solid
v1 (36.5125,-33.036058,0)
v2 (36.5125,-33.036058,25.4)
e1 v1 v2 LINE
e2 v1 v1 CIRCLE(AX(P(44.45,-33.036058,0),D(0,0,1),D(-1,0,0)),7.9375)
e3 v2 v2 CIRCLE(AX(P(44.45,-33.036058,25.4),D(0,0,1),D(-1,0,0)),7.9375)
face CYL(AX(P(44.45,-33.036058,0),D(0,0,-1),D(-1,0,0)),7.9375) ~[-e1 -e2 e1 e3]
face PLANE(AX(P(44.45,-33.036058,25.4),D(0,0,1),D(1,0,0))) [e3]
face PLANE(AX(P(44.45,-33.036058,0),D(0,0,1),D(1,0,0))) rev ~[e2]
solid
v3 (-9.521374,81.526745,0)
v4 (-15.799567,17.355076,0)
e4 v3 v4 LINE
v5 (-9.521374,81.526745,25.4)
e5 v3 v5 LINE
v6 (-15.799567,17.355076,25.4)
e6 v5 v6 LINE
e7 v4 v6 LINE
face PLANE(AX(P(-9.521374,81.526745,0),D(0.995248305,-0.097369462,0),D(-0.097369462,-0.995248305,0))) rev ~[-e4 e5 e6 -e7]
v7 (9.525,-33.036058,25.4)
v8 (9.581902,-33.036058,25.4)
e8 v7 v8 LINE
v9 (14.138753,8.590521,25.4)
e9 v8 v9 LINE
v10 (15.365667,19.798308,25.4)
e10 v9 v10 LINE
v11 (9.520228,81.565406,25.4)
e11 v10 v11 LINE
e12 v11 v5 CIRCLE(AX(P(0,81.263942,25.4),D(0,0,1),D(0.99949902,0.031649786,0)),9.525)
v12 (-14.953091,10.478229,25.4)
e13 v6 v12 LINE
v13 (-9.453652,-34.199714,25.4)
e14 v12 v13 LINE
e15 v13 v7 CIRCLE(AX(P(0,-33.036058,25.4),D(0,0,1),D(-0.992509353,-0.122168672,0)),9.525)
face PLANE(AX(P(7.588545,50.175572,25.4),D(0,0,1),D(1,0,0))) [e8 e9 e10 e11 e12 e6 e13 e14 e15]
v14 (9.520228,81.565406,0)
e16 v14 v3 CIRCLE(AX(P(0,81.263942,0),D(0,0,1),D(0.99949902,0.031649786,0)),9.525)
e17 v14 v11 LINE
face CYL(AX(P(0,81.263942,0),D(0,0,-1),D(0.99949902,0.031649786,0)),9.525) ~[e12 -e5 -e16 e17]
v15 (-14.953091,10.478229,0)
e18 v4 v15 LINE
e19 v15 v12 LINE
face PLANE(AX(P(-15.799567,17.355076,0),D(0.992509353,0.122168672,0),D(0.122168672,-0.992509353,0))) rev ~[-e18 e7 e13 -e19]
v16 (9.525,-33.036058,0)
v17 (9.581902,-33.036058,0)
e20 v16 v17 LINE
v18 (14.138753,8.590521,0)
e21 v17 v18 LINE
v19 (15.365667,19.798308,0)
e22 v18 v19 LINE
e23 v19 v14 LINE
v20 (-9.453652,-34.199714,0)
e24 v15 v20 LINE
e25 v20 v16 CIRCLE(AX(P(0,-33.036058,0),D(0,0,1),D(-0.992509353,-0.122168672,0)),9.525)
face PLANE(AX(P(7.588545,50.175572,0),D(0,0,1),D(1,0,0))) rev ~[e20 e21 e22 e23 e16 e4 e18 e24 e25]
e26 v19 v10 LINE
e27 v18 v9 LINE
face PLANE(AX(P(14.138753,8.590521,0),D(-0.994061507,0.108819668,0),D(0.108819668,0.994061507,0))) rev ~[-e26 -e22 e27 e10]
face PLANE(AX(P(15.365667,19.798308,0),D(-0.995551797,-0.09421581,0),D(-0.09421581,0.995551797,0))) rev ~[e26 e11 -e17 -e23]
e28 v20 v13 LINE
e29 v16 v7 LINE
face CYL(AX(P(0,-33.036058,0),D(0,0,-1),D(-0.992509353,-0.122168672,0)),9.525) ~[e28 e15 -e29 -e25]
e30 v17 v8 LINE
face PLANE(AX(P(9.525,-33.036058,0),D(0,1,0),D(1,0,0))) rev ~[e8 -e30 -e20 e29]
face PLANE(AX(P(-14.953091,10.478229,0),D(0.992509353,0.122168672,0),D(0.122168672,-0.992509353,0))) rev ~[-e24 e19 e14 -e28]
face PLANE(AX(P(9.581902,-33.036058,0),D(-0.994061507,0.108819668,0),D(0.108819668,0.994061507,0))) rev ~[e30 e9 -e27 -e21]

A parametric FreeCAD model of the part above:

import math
import FreeCAD as App
import Part
import Sketcher
Q = App.Units.Quantity

doc = App.newDocument("Part")
body = doc.addObject("PartDesign::Body", "Body")

# Sketch on XY plane
sketch1 = doc.addObject("Sketcher::SketchObject", "Sketch")
body.addObject(sketch1)
sketch1.AttachmentSupport = (doc.XY_Plane, [""])
sketch1.MapMode = "FlatFace"
sketch1.addGeometry([
    Part.LineSegment(App.Vector(-9.52, 81.53, 0), App.Vector(-15.8, 17.36, 0)),  # 0
    Part.LineSegment(App.Vector(-15.8, 17.36, 0), App.Vector(-14.95, 10.48, 0)),  # 1
    Part.LineSegment(App.Vector(-14.95, 10.48, 0), App.Vector(-9.45, -34.2, 0)),  # 2
    Part.ArcOfCircle(Part.Circle(App.Vector(0, -33.04, 0), App.Vector(0, 0, 1), 9.53), math.radians(-173), math.radians(0)),  # 3
    Part.LineSegment(App.Vector(9.53, -33.04, 0), App.Vector(9.58, -33.04, 0)),  # 4
    Part.LineSegment(App.Vector(9.58, -33.04, 0), App.Vector(14.14, 8.59, 0)),  # 5
    Part.LineSegment(App.Vector(14.14, 8.59, 0), App.Vector(15.37, 19.8, 0)),  # 6
    Part.LineSegment(App.Vector(15.37, 19.8, 0), App.Vector(9.52, 81.57, 0)),  # 7
    Part.ArcOfCircle(Part.Circle(App.Vector(0, 81.26, 0), App.Vector(0, 0, 1), 9.53), math.radians(2), math.radians(178)),  # 8
], False)
sketch1.addConstraint([
    Sketcher.Constraint("Coincident", 0, 2, 1, 1),
    Sketcher.Constraint("Coincident", 1, 2, 2, 1),
    Sketcher.Constraint("Tangent", 2, 2, 3, 1),
    Sketcher.Constraint("Coincident", 3, 2, 4, 1),
    Sketcher.Constraint("Coincident", 4, 2, 5, 1),
    Sketcher.Constraint("Coincident", 5, 2, 6, 1),
    Sketcher.Constraint("Coincident", 6, 2, 7, 1),
    Sketcher.Constraint("Coincident", 7, 2, 8, 1),
    Sketcher.Constraint("Coincident", 8, 2, 0, 1),
    Sketcher.Constraint("Horizontal", 4),
    Sketcher.Constraint("Equal", 3, 8),
    Sketcher.Constraint("PointOnObject", 3, 3, -2),
    Sketcher.Constraint("PointOnObject", 8, 3, -2),
    Sketcher.Constraint("Parallel", 1, 2),
    Sketcher.Constraint("Parallel", 5, 6),
    Sketcher.Constraint("Radius", 3, Q("0.375 in")),
    Sketcher.Constraint("DistanceY", 3, 3, 8, 3, Q("4.5 in")),
    Sketcher.Constraint("DistanceY", 3, 2, 8, 3, Q("4.5 in")),
    Sketcher.Constraint("DistanceY", 6, 2, 7, 2, Q("61.767099 mm")),
    Sketcher.Constraint("DistanceX", 8, 2, 7, 2, Q("19.041602 mm")),
    Sketcher.Constraint("Distance", 0, Q("64.47805 mm")),
    Sketcher.Constraint("Distance", 6, Q("11.274741 mm")),
    Sketcher.Constraint("Distance", 7, Q("62.043079 mm")),
    Sketcher.Constraint("DistanceX", 4, 1, 4, 2, Q("0.056902 mm")),
    Sketcher.Constraint("DistanceX", 1, 2, -1, 1, Q("14.953091 mm")),
    Sketcher.Constraint("DistanceY", -1, 1, 1, 2, Q("10.478229 mm")),
    Sketcher.Constraint("DistanceY", -1, 1, 5, 2, Q("8.590521 mm")),
    Sketcher.Constraint("DistanceX", -1, 1, 7, 2, Q("9.520228 mm")),
])
pad1 = doc.addObject("PartDesign::Pad", "Pad")
body.addObject(pad1)
pad1.Profile = sketch1
pad1.Length = Q("1 in")
body2 = doc.addObject("PartDesign::Body", "Body001")

# Sketch on XY plane
sketch2 = doc.addObject("Sketcher::SketchObject", "Sketch001")
body2.addObject(sketch2)
sketch2.AttachmentSupport = (doc.getObject("XY_Plane001"), [""])
sketch2.MapMode = "FlatFace"
sketch2.addGeometry(Part.Circle(App.Vector(44, -33, 0), App.Vector(0, 0, 1), 8), False)
sketch2.addConstraint([
    Sketcher.Constraint("Diameter", 0, Q("0.625 in")),
    Sketcher.Constraint("DistanceX", -1, 1, 0, 3, Q("1.75 in")),
    Sketcher.Constraint("DistanceY", 0, 3, -1, 1, Q("33.036058 mm")),
])
pad2 = doc.addObject("PartDesign::Pad", "Pad001")
body2.addObject(pad2)
pad2.Profile = sketch2
pad2.Length = Q("1 in")

doc.recompute()
